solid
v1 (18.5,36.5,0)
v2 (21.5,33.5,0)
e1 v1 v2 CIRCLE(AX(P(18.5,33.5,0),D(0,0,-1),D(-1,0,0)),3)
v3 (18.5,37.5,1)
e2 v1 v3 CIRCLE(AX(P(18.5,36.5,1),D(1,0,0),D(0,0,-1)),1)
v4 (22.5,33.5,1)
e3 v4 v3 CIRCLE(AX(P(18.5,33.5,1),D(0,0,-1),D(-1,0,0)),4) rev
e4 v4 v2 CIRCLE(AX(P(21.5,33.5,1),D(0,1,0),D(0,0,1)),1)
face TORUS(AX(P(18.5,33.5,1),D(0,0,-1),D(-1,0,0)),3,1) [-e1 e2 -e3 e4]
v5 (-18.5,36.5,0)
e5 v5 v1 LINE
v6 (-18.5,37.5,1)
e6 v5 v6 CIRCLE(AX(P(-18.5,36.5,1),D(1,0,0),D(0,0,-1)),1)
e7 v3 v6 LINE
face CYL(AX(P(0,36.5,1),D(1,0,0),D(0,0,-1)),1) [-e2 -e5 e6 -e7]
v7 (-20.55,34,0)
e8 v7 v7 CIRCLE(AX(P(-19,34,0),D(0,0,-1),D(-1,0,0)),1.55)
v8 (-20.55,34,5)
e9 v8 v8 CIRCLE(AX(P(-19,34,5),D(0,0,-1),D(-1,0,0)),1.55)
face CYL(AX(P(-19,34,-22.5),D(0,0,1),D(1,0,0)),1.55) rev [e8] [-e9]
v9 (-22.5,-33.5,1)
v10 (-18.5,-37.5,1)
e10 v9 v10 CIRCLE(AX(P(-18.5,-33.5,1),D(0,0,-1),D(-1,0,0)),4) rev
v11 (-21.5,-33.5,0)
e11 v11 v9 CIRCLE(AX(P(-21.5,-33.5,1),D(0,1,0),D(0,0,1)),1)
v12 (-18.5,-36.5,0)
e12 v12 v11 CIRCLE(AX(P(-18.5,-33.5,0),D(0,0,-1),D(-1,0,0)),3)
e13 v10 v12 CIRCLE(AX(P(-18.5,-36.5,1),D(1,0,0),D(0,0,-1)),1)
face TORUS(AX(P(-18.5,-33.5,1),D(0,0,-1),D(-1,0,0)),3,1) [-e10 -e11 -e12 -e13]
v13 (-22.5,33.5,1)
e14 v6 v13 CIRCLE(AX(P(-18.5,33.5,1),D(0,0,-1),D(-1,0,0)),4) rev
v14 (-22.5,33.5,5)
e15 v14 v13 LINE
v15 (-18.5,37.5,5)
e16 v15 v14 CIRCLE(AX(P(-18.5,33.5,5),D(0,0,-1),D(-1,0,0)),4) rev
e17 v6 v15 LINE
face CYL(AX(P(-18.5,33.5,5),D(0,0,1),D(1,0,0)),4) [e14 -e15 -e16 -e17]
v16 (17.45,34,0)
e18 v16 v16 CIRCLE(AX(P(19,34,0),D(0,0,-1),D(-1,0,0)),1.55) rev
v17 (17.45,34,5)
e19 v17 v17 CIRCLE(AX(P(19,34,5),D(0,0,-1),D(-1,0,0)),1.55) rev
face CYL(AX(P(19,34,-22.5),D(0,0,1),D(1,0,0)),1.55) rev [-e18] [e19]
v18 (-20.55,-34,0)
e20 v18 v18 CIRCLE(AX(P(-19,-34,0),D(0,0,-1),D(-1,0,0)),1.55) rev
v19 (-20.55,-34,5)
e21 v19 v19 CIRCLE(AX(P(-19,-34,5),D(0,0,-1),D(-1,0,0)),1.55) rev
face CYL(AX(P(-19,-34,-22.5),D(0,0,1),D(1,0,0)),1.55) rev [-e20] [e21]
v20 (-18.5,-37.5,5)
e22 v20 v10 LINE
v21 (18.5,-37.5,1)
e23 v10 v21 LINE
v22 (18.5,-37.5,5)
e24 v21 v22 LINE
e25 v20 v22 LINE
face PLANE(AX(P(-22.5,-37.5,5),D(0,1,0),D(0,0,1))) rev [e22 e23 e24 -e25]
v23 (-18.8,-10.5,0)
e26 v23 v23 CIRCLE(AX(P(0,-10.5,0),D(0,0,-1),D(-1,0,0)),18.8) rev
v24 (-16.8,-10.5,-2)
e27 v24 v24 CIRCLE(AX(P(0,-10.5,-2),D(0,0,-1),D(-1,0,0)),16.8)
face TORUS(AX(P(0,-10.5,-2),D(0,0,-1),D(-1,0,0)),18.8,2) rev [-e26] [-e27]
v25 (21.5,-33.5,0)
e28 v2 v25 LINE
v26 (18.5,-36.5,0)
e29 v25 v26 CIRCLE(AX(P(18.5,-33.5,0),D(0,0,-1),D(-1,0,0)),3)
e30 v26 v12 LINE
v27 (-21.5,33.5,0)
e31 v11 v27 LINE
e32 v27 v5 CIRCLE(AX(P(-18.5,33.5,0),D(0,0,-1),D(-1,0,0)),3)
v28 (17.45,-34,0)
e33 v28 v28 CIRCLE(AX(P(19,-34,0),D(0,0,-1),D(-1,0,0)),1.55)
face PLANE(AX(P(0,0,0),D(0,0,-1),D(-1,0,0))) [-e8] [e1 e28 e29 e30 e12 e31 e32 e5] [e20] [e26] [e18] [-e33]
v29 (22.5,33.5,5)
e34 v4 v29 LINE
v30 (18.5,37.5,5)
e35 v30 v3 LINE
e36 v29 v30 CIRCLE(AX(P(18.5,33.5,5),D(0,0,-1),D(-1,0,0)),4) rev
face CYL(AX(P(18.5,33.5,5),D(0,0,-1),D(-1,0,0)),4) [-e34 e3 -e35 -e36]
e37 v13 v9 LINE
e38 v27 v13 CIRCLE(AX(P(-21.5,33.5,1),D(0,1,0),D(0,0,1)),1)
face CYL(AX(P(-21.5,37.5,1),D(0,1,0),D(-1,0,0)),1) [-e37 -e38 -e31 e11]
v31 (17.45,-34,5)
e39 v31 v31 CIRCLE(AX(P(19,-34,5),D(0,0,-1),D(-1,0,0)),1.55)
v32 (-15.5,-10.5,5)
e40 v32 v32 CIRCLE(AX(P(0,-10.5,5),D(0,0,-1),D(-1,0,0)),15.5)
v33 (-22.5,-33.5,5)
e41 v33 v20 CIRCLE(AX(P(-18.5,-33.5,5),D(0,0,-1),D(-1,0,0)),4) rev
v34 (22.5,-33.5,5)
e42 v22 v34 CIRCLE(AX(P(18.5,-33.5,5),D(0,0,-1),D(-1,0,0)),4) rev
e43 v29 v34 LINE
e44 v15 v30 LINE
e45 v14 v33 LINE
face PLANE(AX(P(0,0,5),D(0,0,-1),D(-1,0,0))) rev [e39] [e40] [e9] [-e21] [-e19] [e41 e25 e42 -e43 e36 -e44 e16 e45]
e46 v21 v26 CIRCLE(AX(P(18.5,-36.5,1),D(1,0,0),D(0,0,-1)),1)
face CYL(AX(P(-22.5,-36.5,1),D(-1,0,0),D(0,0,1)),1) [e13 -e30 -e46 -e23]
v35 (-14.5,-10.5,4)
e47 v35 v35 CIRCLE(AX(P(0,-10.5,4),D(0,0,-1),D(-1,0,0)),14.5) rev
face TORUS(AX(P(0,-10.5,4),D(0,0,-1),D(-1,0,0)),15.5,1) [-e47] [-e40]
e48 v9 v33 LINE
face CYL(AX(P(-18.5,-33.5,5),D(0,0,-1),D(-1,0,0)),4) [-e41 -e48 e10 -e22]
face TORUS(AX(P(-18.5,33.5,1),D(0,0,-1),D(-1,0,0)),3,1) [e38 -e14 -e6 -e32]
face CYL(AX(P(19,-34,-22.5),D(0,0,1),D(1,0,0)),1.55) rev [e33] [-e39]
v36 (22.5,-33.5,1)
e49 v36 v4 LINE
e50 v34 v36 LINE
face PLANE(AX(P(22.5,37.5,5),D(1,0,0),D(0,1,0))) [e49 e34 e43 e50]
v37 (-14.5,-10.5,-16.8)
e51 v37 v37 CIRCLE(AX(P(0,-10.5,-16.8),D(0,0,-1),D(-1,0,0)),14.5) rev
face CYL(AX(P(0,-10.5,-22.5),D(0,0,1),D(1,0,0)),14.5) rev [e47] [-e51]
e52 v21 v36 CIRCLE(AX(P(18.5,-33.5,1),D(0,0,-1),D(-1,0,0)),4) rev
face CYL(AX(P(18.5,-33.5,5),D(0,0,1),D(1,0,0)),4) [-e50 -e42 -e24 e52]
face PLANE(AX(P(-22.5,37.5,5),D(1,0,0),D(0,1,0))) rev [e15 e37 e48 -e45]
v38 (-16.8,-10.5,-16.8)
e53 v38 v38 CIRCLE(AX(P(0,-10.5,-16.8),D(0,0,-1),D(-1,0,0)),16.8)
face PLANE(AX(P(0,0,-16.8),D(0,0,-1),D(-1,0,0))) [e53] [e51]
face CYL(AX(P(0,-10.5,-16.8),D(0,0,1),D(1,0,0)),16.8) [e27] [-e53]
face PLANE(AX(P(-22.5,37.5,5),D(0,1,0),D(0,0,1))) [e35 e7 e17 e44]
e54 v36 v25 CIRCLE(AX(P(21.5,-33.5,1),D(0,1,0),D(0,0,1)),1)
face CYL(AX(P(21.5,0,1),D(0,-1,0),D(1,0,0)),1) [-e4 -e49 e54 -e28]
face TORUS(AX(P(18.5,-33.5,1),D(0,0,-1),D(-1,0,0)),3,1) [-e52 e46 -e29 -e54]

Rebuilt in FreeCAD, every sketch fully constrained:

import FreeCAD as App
import Part
import Sketcher
Q = App.Units.Quantity


def edges_at(feature, points):
    """Names of the edges that pass closest to the given points."""
    edges = feature.Shape.Edges
    near = lambda p: min(range(len(edges)), key=lambda i: edges[i].distToShape(Part.Vertex(*p))[0])
    return sorted({f"Edge{near(p) + 1}" for p in points})


def add_polygon(sketch, points):
    """Adds a closed chain of lines whose ends are joined by coincident constraints."""
    first, n = sketch.GeometryCount, len(points)
    for a, b in zip(points, points[1:] + points[:1]):
        sketch.addGeometry(Part.LineSegment(App.Vector(*a, 0), App.Vector(*b, 0)), False)
    for i in range(n):
        sketch.addConstraint(Sketcher.Constraint("Coincident", first + i, 2, first + (i + 1) % n, 1))

doc = App.newDocument("Part")
body = doc.addObject("PartDesign::Body", "Body")

# Sketch on XY plane
sketch1 = doc.addObject("Sketcher::SketchObject", "Sketch")
body.addObject(sketch1)
sketch1.AttachmentSupport = (doc.XY_Plane, [""])
sketch1.MapMode = "FlatFace"
add_polygon(sketch1, [(-22, 38), (-22, -38), (22, -38), (22, 38)])  # lines 0-3
sketch1.addConstraint(Sketcher.Constraint("Vertical", 0))
sketch1.addConstraint(Sketcher.Constraint("Horizontal", 1))
sketch1.addConstraint(Sketcher.Constraint("Vertical", 2))
sketch1.addConstraint(Sketcher.Constraint("Horizontal", 3))
sketch1.addConstraint(Sketcher.Constraint("Symmetric", 0, 2, 2, 2, -1, 1))
sketch1.addConstraint(Sketcher.Constraint("DistanceX", 1, 1, 1, 2, Q("45 mm")))
sketch1.addConstraint(Sketcher.Constraint("DistanceY", 0, 2, 0, 1, Q("75 mm")))
pad1 = doc.addObject("PartDesign::Pad", "Pad")
body.addObject(pad1)
pad1.Profile = sketch1
pad1.Length = 5

# Sketch on XY plane
sketch2 = doc.addObject("Sketcher::SketchObject", "Sketch001")
body.addObject(sketch2)
sketch2.AttachmentSupport = (doc.XY_Plane, [""])
sketch2.MapMode = "FlatFace"
sketch2.AttachmentOffset = App.Placement(App.Vector(0, 0, 5), App.Rotation())
sketch2.addGeometry(Part.Circle(App.Vector(19, 34, 0), App.Vector(0, 0, 1), 1.6), False)
sketch2.addGeometry(Part.Circle(App.Vector(-19, 34, 0), App.Vector(0, 0, 1), 1.6), False)
sketch2.addGeometry(Part.Circle(App.Vector(19, -34, 0), App.Vector(0, 0, 1), 1.6), False)
sketch2.addGeometry(Part.Circle(App.Vector(-19, -34, 0), App.Vector(0, 0, 1), 1.6), False)
sketch2.addGeometry(Part.Circle(App.Vector(0, -10.5, 0), App.Vector(0, 0, 1), 14.5), False)
sketch2.addConstraint(Sketcher.Constraint("Equal", 0, 1))
sketch2.addConstraint(Sketcher.Constraint("Equal", 1, 2))
sketch2.addConstraint(Sketcher.Constraint("Equal", 2, 3))
sketch2.addConstraint(Sketcher.Constraint("Symmetric", 1, 3, 2, 3, -1, 1))
sketch2.addConstraint(Sketcher.Constraint("Symmetric", 0, 3, 3, 3, -1, 1))
sketch2.addConstraint(Sketcher.Constraint("Symmetric", 0, 3, 1, 3, -2))
sketch2.addConstraint(Sketcher.Constraint("PointOnObject", 4, 3, -2))
sketch2.addConstraint(Sketcher.Constraint("Diameter", 4, Q("29 mm")))
sketch2.addConstraint(Sketcher.Constraint("Diameter", 0, Q("3.1 mm")))
sketch2.addConstraint(Sketcher.Constraint("DistanceX", -1, 1, 0, 3, Q("19 mm")))
sketch2.addConstraint(Sketcher.Constraint("DistanceY", -1, 1, 0, 3, Q("34 mm")))
sketch2.addConstraint(Sketcher.Constraint("DistanceY", 4, 3, -1, 1, Q("10.5 mm")))
pocket1 = doc.addObject("PartDesign::Pocket", "Pocket")
body.addObject(pocket1)
pocket1.Profile = sketch2
pocket1.Length = 55
pocket1.Midplane = True
doc.recompute()

fillet = doc.addObject("PartDesign::Fillet", "Fillet")
body.addObject(fillet)
fillet.Base = (pocket1, edges_at(pocket1, [
    (-22.5, -37.5, 2.5),
    (-22.5, 37.5, 2.5),
    (22.5, 37.5, 2.5),
    (22.5, -37.5, 2.5),
]))
fillet.Radius = 4

# Sketch on XY plane
sketch3 = doc.addObject("Sketcher::SketchObject", "Sketch002")
body.addObject(sketch3)
sketch3.AttachmentSupport = (doc.XY_Plane, [""])
sketch3.MapMode = "FlatFace"
sketch3.addGeometry(Part.Circle(App.Vector(0, -10, 0), App.Vector(0, 0, 1), 17), False)
sketch3.addGeometry(Part.Circle(App.Vector(0, -10, 0), App.Vector(0, 0, 1), 14), False)
sketch3.addConstraint(Sketcher.Constraint("Coincident", 1, 3, 0, 3))
sketch3.addConstraint(Sketcher.Constraint("PointOnObject", 0, 3, -2))
sketch3.addConstraint(Sketcher.Constraint("Diameter", 1, Q("29 mm")))
sketch3.addConstraint(Sketcher.Constraint("Diameter", 0, Q("33.6 mm")))
sketch3.addConstraint(Sketcher.Constraint("DistanceY", 0, 3, -1, 1, Q("10.5 mm")))
pad2 = doc.addObject("PartDesign::Pad", "Pad001")
body.addObject(pad2)
pad2.Profile = sketch3
pad2.Length = 16.8
pad2.Reversed = True
doc.recompute()

fillet2 = doc.addObject("PartDesign::Fillet", "Fillet001")
body.addObject(fillet2)
fillet2.Base = (pad2, edges_at(pad2, [(16.8, -10.5, 0)]))
fillet2.Radius = 2
doc.recompute()

fillet3 = doc.addObject("PartDesign::Fillet", "Fillet002")
body.addObject(fillet3)
fillet3.Base = (fillet2, edges_at(fillet2, [
    (14.5, -10.5, 5),
    (0, -37.5, 0),
    (-22.5, 0, 0),
    (0, 37.5, 0),
    (22.5, 0, 0),
    (-21.328, 36.328, 0),
    (21.328, 36.328, 0),
    (21.328, -36.328, 0),
    (-21.328, -36.328, 0),
]))
fillet3.Radius = 1

doc.recompute()
